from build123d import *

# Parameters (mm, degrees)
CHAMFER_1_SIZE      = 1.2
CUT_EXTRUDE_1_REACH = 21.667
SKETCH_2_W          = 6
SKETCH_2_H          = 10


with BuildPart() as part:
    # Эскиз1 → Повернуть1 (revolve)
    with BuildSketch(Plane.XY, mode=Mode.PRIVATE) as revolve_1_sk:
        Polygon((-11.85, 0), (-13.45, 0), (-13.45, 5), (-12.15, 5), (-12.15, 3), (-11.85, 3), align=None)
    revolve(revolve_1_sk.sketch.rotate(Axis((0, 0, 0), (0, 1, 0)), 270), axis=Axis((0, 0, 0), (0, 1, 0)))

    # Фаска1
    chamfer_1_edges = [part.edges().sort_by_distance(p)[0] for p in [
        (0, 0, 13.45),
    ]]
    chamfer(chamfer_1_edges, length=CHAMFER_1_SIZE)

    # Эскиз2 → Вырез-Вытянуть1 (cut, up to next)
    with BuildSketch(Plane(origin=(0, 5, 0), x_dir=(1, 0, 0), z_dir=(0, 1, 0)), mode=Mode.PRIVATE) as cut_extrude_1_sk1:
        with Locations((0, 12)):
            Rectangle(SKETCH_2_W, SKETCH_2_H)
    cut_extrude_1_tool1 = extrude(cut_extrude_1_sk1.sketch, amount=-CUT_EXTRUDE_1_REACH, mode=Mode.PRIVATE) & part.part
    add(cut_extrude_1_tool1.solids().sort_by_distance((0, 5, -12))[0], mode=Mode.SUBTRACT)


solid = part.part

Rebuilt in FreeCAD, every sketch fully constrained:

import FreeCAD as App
import Part
import Sketcher
from FreeCAD import Vector


def edges_at(feature, points):
    """Names of the edges that pass closest to the given points."""
    edges = feature.Shape.Edges
    near = lambda p: min(range(len(edges)), key=lambda i: edges[i].distToShape(Part.Vertex(*p))[0])
    return sorted({f"Edge{near(p) + 1}" for p in points})


def add_polygon(sketch, points):
    """Adds a closed chain of lines whose ends are joined by coincident constraints."""
    first, n = sketch.GeometryCount, len(points)
    for a, b in zip(points, points[1:] + points[:1]):
        sketch.addGeometry(Part.LineSegment(App.Vector(*a, 0), App.Vector(*b, 0)), False)
    for i in range(n):
        sketch.addConstraint(Sketcher.Constraint("Coincident", first + i, 2, first + (i + 1) % n, 1))

doc = App.newDocument("Part")
body = doc.addObject("PartDesign::Body", "Body")

sketch1 = body.newObject("Sketcher::SketchObject", "Sketch")
sketch1.AttachmentSupport = (doc.getObject("XY_Plane"), [""])
sketch1.MapMode = "FlatFace"
add_polygon(sketch1, [(-13.45, 0), (-11.85, 0), (-11.85, 3), (-12.15, 3), (-12.15, 5), (-13.45, 5)])
sketch1.addConstraint(Sketcher.Constraint("Horizontal", 0))
sketch1.addConstraint(Sketcher.Constraint("Vertical", 1))
sketch1.addConstraint(Sketcher.Constraint("Horizontal", 2))
sketch1.addConstraint(Sketcher.Constraint("Vertical", 3))
sketch1.addConstraint(Sketcher.Constraint("Horizontal", 4))
sketch1.addConstraint(Sketcher.Constraint("Vertical", 5))
sketch1.addConstraint(Sketcher.Constraint("PointOnObject", 0, 2, -1))
sketch1.addConstraint(Sketcher.Constraint("DistanceY", 1, 1, 1, 2, 3.0))
sketch1.addConstraint(Sketcher.Constraint("DistanceY", 3, 1, 3, 2, 2.0))
sketch1.addConstraint(Sketcher.Constraint("DistanceX", 0, 1, 0, 2, 1.6))
sketch1.addConstraint(Sketcher.Constraint("DistanceX", 2, 2, 2, 1, 0.3))
sketch1.addConstraint(Sketcher.Constraint("DistanceX", 0, 2, -1, 1, 11.85))
revolution = body.newObject("PartDesign::Revolution", "Revolution")
revolution.Profile = sketch1
revolution.ReferenceAxis = (sketch1, ["V_Axis"])
revolution.Angle = 360
doc.recompute()

chamfer = body.newObject("PartDesign::Chamfer", "Chamfer")
chamfer.Base = (revolution, edges_at(revolution, [(0, 0, 13.45)]))
chamfer.Size = 1.2

sketch2 = body.newObject("Sketcher::SketchObject", "Sketch001")
sketch2.AttachmentSupport = (doc.getObject("XZ_Plane"), [""])
sketch2.MapMode = "FlatFace"
sketch2.AttachmentOffset = App.Placement(Vector(0, 0, -5), App.Rotation())
add_polygon(sketch2, [(-3, -17), (-3, -7), (3, -7), (3, -17)])
sketch2.addConstraint(Sketcher.Constraint("Vertical", 0))
sketch2.addConstraint(Sketcher.Constraint("Horizontal", 1))
sketch2.addConstraint(Sketcher.Constraint("Vertical", 2))
sketch2.addConstraint(Sketcher.Constraint("Horizontal", 3))
sketch2.addConstraint(Sketcher.Constraint("DistanceX", 1, 1, 1, 2, 6.0))
sketch2.addConstraint(Sketcher.Constraint("DistanceY", 0, 1, 0, 2, 10.0))
sketch2.addConstraint(Sketcher.Constraint("DistanceX", 0, 2, -1, 1, 3.0))
sketch2.addConstraint(Sketcher.Constraint("DistanceY", 0, 2, -1, 1, 7.0))
pocket1 = body.newObject("PartDesign::Pocket", "Pocket")
pocket1.Profile = sketch2
pocket1.Length = 5
pocket1.Reversed = True

doc.recompute()
